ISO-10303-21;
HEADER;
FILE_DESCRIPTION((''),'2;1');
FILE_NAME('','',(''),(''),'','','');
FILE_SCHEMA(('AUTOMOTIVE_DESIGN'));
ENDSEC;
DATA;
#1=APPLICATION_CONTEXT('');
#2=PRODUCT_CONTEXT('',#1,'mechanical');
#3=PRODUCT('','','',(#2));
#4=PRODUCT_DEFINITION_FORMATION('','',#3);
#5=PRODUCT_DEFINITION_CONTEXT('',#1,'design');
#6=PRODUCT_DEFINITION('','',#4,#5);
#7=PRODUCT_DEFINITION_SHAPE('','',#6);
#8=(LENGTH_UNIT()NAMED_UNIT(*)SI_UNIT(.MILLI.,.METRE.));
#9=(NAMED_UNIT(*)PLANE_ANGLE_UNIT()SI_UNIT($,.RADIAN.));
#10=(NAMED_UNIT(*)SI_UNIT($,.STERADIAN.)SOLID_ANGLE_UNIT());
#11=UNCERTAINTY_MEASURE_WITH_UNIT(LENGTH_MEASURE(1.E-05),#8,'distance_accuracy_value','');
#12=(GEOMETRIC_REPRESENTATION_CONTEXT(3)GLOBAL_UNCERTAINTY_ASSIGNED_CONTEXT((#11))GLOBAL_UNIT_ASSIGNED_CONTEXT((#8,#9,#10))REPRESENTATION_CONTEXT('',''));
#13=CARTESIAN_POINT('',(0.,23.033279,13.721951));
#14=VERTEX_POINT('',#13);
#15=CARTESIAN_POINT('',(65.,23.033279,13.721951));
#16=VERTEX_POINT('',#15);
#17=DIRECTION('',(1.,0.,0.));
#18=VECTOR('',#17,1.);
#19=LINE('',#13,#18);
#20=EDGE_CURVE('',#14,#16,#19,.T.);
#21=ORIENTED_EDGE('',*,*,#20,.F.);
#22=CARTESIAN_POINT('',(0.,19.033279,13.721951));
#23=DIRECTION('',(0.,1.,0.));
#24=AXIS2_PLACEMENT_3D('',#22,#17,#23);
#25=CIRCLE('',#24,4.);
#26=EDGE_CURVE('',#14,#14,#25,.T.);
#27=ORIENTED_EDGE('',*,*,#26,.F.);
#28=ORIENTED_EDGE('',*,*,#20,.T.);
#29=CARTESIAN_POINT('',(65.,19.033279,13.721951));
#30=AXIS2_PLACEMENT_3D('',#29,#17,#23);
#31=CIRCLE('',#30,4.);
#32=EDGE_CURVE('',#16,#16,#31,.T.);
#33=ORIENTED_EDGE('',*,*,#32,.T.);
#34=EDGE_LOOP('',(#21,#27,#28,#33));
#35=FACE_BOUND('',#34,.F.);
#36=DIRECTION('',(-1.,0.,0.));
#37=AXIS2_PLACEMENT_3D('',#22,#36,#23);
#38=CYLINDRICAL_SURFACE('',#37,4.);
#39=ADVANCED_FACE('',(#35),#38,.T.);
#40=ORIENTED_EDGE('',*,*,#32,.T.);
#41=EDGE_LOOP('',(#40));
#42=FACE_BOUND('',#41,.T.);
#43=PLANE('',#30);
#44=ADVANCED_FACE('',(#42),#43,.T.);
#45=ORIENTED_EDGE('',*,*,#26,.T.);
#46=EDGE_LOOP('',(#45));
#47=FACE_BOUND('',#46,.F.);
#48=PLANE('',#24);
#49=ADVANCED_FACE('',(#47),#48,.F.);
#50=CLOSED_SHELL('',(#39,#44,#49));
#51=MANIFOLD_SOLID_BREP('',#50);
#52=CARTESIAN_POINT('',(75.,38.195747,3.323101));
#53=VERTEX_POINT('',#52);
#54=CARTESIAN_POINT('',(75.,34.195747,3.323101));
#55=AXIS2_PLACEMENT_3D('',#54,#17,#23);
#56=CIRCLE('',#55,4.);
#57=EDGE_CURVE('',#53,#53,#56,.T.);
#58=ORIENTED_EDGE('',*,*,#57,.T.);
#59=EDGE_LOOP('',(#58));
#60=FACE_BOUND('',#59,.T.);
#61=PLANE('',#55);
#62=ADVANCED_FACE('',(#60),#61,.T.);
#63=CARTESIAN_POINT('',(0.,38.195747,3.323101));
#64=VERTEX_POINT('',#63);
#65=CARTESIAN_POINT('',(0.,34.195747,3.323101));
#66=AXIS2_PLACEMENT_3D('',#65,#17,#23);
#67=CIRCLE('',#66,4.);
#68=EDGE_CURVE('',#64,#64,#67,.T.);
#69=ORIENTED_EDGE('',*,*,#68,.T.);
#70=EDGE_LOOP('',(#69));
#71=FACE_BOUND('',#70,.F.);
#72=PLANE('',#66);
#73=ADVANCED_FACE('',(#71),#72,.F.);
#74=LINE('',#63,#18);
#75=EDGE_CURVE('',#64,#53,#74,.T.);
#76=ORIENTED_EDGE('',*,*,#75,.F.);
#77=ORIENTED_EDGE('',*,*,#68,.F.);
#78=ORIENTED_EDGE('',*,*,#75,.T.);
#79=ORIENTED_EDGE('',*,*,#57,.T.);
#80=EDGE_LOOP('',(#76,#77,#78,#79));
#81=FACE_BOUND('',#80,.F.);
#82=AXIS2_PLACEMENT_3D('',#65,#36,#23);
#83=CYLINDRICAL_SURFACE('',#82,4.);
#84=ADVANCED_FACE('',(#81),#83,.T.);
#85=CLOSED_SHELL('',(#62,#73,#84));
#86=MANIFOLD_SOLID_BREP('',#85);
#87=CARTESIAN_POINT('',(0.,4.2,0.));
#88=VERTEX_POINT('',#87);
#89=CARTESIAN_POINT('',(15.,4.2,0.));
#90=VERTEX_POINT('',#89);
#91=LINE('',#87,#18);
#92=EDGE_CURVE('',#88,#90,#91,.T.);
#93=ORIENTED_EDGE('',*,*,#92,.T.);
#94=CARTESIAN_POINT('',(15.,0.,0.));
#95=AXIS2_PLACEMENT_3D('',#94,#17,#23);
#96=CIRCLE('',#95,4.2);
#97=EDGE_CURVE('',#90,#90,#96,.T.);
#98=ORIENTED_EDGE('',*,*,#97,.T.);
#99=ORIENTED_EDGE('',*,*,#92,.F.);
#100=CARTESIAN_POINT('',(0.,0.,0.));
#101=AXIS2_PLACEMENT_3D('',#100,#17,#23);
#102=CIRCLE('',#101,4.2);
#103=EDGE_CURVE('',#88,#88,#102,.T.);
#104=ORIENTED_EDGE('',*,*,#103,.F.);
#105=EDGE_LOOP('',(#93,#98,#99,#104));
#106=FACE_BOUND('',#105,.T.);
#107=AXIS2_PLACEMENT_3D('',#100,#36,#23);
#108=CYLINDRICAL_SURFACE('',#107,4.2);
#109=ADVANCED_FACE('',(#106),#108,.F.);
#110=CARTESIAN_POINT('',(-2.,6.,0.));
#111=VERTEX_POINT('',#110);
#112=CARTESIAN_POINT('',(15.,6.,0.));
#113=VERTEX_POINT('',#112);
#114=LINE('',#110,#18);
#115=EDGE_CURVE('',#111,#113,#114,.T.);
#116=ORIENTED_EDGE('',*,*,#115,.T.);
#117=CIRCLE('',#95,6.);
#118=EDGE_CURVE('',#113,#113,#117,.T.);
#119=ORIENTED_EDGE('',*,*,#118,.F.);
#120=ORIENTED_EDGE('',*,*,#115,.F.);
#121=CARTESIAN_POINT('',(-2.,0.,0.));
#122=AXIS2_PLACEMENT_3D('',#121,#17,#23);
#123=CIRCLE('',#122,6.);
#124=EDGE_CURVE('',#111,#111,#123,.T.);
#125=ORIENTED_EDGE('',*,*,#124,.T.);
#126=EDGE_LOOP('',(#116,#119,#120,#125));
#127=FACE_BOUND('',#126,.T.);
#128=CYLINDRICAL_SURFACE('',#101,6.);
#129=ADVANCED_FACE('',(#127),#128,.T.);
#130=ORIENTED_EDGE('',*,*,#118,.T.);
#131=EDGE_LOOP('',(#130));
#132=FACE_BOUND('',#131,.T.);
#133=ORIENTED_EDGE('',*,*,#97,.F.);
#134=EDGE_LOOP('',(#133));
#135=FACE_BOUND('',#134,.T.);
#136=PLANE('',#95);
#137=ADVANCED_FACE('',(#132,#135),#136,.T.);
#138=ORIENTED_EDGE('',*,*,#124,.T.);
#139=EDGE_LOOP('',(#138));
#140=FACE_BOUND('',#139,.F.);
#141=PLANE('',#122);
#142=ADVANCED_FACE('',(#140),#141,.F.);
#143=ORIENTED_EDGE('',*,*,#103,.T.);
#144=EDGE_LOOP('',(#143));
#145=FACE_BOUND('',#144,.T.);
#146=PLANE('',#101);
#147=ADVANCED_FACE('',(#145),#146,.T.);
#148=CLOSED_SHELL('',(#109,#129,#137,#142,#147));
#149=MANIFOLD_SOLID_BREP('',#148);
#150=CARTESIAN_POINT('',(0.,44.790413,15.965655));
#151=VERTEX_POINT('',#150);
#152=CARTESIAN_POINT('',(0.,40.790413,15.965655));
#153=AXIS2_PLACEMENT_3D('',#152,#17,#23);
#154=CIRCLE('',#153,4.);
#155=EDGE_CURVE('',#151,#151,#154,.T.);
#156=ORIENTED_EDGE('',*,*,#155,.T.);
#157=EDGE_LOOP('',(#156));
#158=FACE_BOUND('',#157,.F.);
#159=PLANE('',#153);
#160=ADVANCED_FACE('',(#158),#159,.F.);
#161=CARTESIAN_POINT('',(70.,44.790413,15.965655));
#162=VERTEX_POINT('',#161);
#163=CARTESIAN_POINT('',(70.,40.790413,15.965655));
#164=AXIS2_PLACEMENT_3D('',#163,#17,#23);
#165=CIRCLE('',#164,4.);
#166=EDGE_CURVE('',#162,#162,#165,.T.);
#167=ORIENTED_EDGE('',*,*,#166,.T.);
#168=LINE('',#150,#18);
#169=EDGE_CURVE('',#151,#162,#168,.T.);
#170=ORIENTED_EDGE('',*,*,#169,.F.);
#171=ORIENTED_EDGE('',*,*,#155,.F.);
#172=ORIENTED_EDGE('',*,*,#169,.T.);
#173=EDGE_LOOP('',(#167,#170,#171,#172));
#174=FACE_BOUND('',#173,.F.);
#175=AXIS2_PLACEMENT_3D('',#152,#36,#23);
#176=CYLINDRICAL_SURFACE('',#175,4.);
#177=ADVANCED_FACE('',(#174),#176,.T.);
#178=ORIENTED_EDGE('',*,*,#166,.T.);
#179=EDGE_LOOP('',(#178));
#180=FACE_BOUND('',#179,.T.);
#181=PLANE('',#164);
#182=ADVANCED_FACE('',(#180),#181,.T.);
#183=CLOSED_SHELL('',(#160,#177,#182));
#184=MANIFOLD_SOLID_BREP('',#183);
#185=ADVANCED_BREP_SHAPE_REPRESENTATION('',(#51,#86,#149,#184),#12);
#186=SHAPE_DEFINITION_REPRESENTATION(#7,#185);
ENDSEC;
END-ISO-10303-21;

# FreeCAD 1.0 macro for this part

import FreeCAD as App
import Part
import Sketcher
from FreeCAD import Vector
Q = App.Units.Quantity

doc = App.newDocument("Part")
params = doc.addObject("Spreadsheet::Sheet", "Params")
for row, (alias, value) in enumerate([
    ("sketch1_diameter", "12 mm"),
    ("sketch1_diameter2", "8.4 mm"),
    ("pad1_length", "15 mm"),
    ("sketch2_diameter", "12 mm"),
    ("pad2_length", "2 mm"),
    ("sketch3_diameter", "8 mm"),
    ("pad3_length", "75 mm"),
    ("sketch4_diameter", "8 mm"),
    ("pad4_length", "65 mm"),
    ("sketch5_diameter", "8 mm"),
    ("pad5_length", "70 mm"),
], start=1):
    params.set(f"A{row}", alias)
    params.set(f"B{row}", "=" + value)
    params.setAlias(f"B{row}", alias)

body = doc.addObject("PartDesign::Body", "Body")

# Sketch on YZ plane
sketch1 = body.newObject("Sketcher::SketchObject", "Sketch")
sketch1.AttachmentSupport = (doc.getObject("YZ_Plane"), [""])
sketch1.MapMode = "FlatFace"
sketch1.addGeometry([
    Part.Circle(Vector(0, 0, 0), Vector(0, 0, 1), 6),
    Part.Circle(Vector(0, 0, 0), Vector(0, 0, 1), 4.2),
], False)
sketch1.addConstraint([
    Sketcher.Constraint("Coincident", 0, 3, -1, 1),
    Sketcher.Constraint("Coincident", 1, 3, -1, 1),
    Sketcher.Constraint("Diameter", 0, Q("12 mm")),
    Sketcher.Constraint("Diameter", 1, Q("8.4 mm")),
])
sketch1.setExpression("Constraints[2]", "Params.sketch1_diameter")
sketch1.setExpression("Constraints[3]", "Params.sketch1_diameter2")
pad1 = body.newObject("PartDesign::Pad", "Pad")
pad1.Profile = sketch1
pad1.setExpression("Length", "Params.pad1_length")

# Sketch on YZ plane
sketch2 = body.newObject("Sketcher::SketchObject", "Sketch001")
sketch2.AttachmentSupport = (doc.getObject("YZ_Plane"), [""])
sketch2.MapMode = "FlatFace"
sketch2.addGeometry(Part.Circle(Vector(0, 0, 0), Vector(0, 0, 1), 6), False)
sketch2.addConstraint([
    Sketcher.Constraint("Coincident", 0, 3, -1, 1),
    Sketcher.Constraint("Diameter", 0, Q("12 mm")),
])
sketch2.setExpression("Constraints[1]", "Params.sketch2_diameter")
pad2 = body.newObject("PartDesign::Pad", "Pad001")
pad2.Profile = sketch2
pad2.setExpression("Length", "Params.pad2_length")
pad2.Reversed = True
body2 = doc.addObject("PartDesign::Body", "Body001")

# Sketch on YZ plane
sketch3 = body2.newObject("Sketcher::SketchObject", "Sketch002")
sketch3.AttachmentSupport = (doc.getObject("YZ_Plane001"), [""])
sketch3.MapMode = "FlatFace"
sketch3.addGeometry(Part.Circle(Vector(34.2, 3.3, 0), Vector(0, 0, 1), 4), False)
sketch3.addConstraint([
    Sketcher.Constraint("Diameter", 0, Q("8 mm")),
    Sketcher.Constraint("DistanceY", -1, 1, 0, 3, Q("3.323101 mm")),
    Sketcher.Constraint("DistanceX", -1, 1, 0, 3, Q("34.195747 mm")),
])
sketch3.setExpression("Constraints[0]", "Params.sketch3_diameter")
pad3 = body2.newObject("PartDesign::Pad", "Pad002")
pad3.Profile = sketch3
pad3.setExpression("Length", "Params.pad3_length")
body3 = doc.addObject("PartDesign::Body", "Body002")

# Sketch on YZ plane
sketch4 = body3.newObject("Sketcher::SketchObject", "Sketch003")
sketch4.AttachmentSupport = (doc.getObject("YZ_Plane002"), [""])
sketch4.MapMode = "FlatFace"
sketch4.addGeometry(Part.Circle(Vector(19, 13.7, 0), Vector(0, 0, 1), 4), False)
sketch4.addConstraint([
    Sketcher.Constraint("Diameter", 0, Q("8 mm")),
    Sketcher.Constraint("DistanceX", -1, 1, 0, 3, Q("19.033279 mm")),
    Sketcher.Constraint("DistanceY", -1, 1, 0, 3, Q("13.721951 mm")),
])
sketch4.setExpression("Constraints[0]", "Params.sketch4_diameter")
pad4 = body3.newObject("PartDesign::Pad", "Pad003")
pad4.Profile = sketch4
pad4.setExpression("Length", "Params.pad4_length")
body4 = doc.addObject("PartDesign::Body", "Body003")

# Sketch on YZ plane
sketch5 = body4.newObject("Sketcher::SketchObject", "Sketch004")
sketch5.AttachmentSupport = (doc.getObject("YZ_Plane003"), [""])
sketch5.MapMode = "FlatFace"
sketch5.addGeometry(Part.Circle(Vector(40.8, 16, 0), Vector(0, 0, 1), 4), False)
sketch5.addConstraint([
    Sketcher.Constraint("Diameter", 0, Q("8 mm")),
    Sketcher.Constraint("DistanceX", -1, 1, 0, 3, Q("40.790413 mm")),
    Sketcher.Constraint("DistanceY", -1, 1, 0, 3, Q("15.965655 mm")),
])
sketch5.setExpression("Constraints[0]", "Params.sketch5_diameter")
pad5 = body4.newObject("PartDesign::Pad", "Pad004")
pad5.Profile = sketch5
pad5.setExpression("Length", "Params.pad5_length")

doc.recompute()
